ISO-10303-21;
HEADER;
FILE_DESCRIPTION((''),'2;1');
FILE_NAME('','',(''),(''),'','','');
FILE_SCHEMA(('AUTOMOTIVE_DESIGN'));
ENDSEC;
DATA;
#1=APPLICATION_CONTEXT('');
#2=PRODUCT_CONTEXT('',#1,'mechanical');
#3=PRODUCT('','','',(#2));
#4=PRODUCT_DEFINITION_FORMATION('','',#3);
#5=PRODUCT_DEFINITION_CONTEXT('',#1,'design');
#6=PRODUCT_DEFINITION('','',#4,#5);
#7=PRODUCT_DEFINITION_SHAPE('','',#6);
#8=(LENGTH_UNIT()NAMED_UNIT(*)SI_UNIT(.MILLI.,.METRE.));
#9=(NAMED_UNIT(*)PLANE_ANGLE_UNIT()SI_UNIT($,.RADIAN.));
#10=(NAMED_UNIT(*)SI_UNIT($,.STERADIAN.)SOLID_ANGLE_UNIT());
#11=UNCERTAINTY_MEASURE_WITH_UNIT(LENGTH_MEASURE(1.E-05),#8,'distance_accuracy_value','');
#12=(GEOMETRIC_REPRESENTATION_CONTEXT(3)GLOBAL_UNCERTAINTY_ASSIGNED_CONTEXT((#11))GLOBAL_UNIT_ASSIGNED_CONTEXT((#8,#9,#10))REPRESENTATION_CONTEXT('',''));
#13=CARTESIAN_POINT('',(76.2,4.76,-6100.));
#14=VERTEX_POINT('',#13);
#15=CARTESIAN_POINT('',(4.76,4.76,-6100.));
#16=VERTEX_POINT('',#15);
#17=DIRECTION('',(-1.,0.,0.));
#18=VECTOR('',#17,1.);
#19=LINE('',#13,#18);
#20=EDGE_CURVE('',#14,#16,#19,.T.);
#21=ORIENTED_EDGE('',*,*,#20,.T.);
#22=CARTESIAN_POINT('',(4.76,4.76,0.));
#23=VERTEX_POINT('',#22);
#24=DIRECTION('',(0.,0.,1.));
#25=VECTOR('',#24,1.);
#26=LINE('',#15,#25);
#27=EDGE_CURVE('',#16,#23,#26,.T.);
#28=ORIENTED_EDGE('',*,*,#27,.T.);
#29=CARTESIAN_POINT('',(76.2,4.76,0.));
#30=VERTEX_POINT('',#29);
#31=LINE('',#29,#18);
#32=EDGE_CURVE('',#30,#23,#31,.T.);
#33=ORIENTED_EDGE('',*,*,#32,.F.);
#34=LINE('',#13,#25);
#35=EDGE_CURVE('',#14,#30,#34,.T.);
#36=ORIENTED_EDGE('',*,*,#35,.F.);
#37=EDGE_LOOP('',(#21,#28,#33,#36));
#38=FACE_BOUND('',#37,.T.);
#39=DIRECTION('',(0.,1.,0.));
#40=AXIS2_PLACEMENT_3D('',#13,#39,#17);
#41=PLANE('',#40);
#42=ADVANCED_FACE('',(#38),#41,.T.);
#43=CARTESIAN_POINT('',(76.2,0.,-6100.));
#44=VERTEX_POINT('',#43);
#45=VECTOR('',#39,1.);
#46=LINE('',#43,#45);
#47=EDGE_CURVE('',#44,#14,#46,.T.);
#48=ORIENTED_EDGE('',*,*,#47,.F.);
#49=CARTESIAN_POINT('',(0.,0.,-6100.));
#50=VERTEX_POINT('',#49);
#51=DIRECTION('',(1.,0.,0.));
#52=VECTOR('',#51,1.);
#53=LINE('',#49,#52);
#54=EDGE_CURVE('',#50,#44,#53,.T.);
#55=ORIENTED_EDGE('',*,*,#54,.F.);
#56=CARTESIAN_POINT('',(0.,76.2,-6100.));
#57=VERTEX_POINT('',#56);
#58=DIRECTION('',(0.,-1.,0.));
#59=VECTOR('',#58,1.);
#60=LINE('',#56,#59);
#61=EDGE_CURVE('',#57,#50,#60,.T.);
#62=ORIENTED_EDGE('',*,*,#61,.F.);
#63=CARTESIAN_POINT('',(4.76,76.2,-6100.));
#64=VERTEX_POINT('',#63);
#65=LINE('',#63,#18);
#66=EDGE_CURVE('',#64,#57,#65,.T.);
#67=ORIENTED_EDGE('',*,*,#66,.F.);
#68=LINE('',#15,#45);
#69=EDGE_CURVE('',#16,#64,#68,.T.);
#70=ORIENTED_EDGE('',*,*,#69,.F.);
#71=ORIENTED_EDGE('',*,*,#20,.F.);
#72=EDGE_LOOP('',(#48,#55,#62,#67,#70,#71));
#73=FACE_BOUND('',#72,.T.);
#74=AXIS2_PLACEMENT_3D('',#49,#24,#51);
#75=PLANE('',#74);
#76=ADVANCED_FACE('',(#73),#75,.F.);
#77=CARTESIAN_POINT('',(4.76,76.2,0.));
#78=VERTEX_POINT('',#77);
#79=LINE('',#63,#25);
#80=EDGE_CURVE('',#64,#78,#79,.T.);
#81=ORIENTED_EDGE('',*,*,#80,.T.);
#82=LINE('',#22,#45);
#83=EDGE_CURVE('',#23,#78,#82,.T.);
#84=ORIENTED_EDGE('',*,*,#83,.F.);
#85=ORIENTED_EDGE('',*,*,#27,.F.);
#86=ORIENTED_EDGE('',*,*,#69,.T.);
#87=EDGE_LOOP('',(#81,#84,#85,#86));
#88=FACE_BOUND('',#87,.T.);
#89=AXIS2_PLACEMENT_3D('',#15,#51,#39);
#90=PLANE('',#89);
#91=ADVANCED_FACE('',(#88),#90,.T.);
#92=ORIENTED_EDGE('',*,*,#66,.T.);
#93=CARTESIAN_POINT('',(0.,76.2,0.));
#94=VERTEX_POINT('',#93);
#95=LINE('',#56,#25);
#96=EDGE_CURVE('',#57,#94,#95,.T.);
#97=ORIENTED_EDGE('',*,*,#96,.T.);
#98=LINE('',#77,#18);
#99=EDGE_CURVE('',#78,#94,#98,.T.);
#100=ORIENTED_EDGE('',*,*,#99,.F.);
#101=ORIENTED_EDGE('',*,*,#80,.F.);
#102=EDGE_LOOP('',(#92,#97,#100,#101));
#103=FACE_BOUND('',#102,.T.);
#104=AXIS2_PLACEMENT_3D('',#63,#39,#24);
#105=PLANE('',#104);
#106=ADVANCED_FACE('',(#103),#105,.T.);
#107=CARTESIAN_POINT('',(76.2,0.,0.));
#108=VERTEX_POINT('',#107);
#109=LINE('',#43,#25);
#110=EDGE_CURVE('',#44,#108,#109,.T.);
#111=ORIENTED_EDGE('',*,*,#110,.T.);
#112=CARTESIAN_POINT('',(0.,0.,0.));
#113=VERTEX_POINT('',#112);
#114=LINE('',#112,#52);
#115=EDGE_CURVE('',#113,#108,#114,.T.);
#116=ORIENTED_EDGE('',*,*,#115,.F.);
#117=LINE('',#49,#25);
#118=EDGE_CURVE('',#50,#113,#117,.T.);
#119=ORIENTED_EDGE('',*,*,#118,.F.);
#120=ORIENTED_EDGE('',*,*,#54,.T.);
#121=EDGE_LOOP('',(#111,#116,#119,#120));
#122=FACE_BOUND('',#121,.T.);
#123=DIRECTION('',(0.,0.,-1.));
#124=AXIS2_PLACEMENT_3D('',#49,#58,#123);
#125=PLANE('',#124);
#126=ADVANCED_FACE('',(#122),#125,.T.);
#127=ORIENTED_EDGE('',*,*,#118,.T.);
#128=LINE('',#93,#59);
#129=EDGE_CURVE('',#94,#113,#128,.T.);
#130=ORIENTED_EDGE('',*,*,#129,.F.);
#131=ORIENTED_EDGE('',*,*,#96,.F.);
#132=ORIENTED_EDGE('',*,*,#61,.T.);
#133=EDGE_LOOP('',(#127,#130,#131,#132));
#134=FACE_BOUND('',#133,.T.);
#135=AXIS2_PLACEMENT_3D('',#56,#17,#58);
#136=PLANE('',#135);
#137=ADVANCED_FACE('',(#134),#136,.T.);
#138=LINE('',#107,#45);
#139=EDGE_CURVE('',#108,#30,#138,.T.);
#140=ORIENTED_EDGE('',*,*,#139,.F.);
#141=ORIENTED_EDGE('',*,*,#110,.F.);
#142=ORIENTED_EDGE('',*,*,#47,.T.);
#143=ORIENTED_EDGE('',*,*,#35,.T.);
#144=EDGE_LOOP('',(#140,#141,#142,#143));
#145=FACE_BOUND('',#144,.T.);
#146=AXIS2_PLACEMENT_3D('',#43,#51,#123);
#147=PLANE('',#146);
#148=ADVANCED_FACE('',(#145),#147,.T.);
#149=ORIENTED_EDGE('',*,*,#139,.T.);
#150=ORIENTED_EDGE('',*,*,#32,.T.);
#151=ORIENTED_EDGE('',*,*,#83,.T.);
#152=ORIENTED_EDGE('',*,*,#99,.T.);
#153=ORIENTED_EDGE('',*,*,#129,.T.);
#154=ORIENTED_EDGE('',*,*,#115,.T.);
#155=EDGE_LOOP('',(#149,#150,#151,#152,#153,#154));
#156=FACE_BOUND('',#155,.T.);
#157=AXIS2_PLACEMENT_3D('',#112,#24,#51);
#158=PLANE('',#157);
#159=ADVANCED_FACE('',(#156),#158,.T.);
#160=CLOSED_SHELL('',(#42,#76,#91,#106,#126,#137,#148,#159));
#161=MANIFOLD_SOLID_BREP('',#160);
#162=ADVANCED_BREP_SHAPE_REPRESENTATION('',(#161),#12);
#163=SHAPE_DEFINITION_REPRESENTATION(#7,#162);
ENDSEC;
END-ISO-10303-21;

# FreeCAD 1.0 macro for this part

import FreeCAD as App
import Part
import Sketcher

V = App.Vector

doc = App.newDocument("Part")
params = doc.addObject("Spreadsheet::Sheet", "Params")
for row, (alias, value) in enumerate([
    ("sketch1_width", "76.2 mm"),
    ("sketch1_width2", "71.44 mm"),
    ("pad1_length", "6100 mm"),
], start=1):
    params.set(f"A{row}", alias)
    params.set(f"B{row}", "=" + value)
    params.setAlias(f"B{row}", alias)

body = doc.addObject("PartDesign::Body", "Body")

# Sketch on XY plane
sketch1 = doc.addObject("Sketcher::SketchObject", "Sketch")
body.addObject(sketch1)
sketch1.AttachmentSupport = (doc.XY_Plane, [""])
sketch1.MapMode = "FlatFace"
sketch1.addGeometry(Part.LineSegment(V(0, 76.2, 0), V(0, 0, 0)), False)
sketch1.addGeometry(Part.LineSegment(V(0, 0, 0), V(76.2, 0, 0)), False)
sketch1.addGeometry(Part.LineSegment(V(76.2, 0, 0), V(76.2, 4.76, 0)), False)
sketch1.addGeometry(Part.LineSegment(V(76.2, 4.76, 0), V(4.76, 4.76, 0)), False)
sketch1.addGeometry(Part.LineSegment(V(4.76, 4.76, 0), V(4.76, 76.2, 0)), False)
sketch1.addGeometry(Part.LineSegment(V(4.76, 76.2, 0), V(0, 76.2, 0)), False)
sketch1.addConstraint(Sketcher.Constraint("Coincident", 0, 2, 1, 1))
sketch1.addConstraint(Sketcher.Constraint("Coincident", 1, 2, 2, 1))
sketch1.addConstraint(Sketcher.Constraint("Coincident", 2, 2, 3, 1))
sketch1.addConstraint(Sketcher.Constraint("Coincident", 3, 2, 4, 1))
sketch1.addConstraint(Sketcher.Constraint("Coincident", 4, 2, 5, 1))
sketch1.addConstraint(Sketcher.Constraint("Coincident", 5, 2, 0, 1))
sketch1.addConstraint(Sketcher.Constraint("Vertical", 0))
sketch1.addConstraint(Sketcher.Constraint("Horizontal", 1))
sketch1.addConstraint(Sketcher.Constraint("Vertical", 2))
sketch1.addConstraint(Sketcher.Constraint("Horizontal", 3))
sketch1.addConstraint(Sketcher.Constraint("Vertical", 4))
sketch1.addConstraint(Sketcher.Constraint("Horizontal", 5))
sketch1.addConstraint(Sketcher.Constraint("Coincident", 0, 2, -1, 1))
sketch1.addConstraint(Sketcher.Constraint("Equal", 1, 0))
sketch1.addConstraint(Sketcher.Constraint("Equal", 5, 2))
sketch1.addConstraint(Sketcher.Constraint("DistanceX", 1, 1, 1, 2, 76.2))
sketch1.addConstraint(Sketcher.Constraint("DistanceX", 3, 2, 3, 1, 71.44))
sketch1.setExpression("Constraints[15]", "Params.sketch1_width")
sketch1.setExpression("Constraints[16]", "Params.sketch1_width2")
pad1 = doc.addObject("PartDesign::Pad", "Pad")
body.addObject(pad1)
pad1.Profile = sketch1
pad1.setExpression("Length", "Params.pad1_length")
pad1.Reversed = True

doc.recompute()
